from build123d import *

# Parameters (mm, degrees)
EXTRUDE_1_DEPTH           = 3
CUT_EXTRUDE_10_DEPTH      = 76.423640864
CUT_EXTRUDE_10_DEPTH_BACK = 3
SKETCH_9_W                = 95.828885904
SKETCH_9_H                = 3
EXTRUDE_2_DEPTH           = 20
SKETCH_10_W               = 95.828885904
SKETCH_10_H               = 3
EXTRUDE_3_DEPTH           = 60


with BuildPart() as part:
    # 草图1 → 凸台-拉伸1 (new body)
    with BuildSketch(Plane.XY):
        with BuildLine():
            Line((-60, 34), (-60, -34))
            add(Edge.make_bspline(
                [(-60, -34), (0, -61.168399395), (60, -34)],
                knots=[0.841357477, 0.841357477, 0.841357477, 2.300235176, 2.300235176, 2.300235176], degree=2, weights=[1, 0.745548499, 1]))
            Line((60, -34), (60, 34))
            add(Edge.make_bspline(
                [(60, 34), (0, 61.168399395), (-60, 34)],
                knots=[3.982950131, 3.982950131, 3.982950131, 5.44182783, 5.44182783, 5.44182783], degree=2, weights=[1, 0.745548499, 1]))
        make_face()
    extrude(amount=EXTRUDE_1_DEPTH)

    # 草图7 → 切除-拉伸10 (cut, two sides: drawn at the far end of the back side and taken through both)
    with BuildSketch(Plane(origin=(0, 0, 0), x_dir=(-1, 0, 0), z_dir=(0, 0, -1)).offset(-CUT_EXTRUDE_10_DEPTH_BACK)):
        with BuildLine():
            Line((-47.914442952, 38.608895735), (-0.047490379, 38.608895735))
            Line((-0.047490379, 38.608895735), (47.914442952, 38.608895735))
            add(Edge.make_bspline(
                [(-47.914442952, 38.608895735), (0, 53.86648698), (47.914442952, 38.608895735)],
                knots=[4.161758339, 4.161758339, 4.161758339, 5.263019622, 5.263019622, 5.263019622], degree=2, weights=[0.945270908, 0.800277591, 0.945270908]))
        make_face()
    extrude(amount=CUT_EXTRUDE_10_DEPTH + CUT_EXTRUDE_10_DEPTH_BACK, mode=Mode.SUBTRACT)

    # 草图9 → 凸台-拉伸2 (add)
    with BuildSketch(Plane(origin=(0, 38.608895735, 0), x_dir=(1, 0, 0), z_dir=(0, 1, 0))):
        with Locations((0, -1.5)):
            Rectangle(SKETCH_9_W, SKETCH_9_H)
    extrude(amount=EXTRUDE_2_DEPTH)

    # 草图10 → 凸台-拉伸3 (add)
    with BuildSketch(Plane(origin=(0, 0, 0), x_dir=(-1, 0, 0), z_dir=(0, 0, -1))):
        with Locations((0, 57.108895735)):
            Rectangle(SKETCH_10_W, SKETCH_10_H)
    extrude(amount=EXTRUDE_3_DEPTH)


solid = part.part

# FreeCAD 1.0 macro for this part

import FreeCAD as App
import Part
import Sketcher
Q = App.Units.Quantity

doc = App.newDocument("Part")
body = doc.addObject("PartDesign::Body", "Body")

# Sketch on XY plane
sketch1 = body.newObject("Sketcher::SketchObject", "Sketch")
sketch1.AttachmentSupport = (doc.getObject("XY_Plane"), [""])
sketch1.MapMode = "FlatFace"
sketch1.addGeometry([
    Part.LineSegment(App.Vector(-60, 34, 0), App.Vector(-60, -34, 0)),
    Part.BSplineCurve([App.Vector(-60, -34, 0), App.Vector(0, -61.168399, 0), App.Vector(60, -34, 0)], [3, 3], [0.841357477, 2.300235176], False, 2, [1, 0.745548499, 1], False),
    Part.LineSegment(App.Vector(60, -34, 0), App.Vector(60, 34, 0)),
    Part.BSplineCurve([App.Vector(60, 34, 0), App.Vector(0, 61.168399, 0), App.Vector(-60, 34, 0)], [3, 3], [3.982950131, 5.44182783], False, 2, [1, 0.745548499, 1], False),
], False)
sketch1.addConstraint([
    Sketcher.Constraint("Block", 1),
    Sketcher.Constraint("Block", 3),
    Sketcher.Constraint("Coincident", 0, 2, 1, 1),
    Sketcher.Constraint("Coincident", 1, 2, 2, 1),
    Sketcher.Constraint("Coincident", 2, 2, 3, 1),
    Sketcher.Constraint("Coincident", 3, 2, 0, 1),
])
pad1 = body.newObject("PartDesign::Pad", "Pad")
pad1.Profile = sketch1
pad1.Length = 3

# Sketch on XY plane
sketch2 = body.newObject("Sketcher::SketchObject", "Sketch001")
sketch2.AttachmentSupport = (doc.getObject("XY_Plane"), [""])
sketch2.MapMode = "FlatFace"
sketch2.addGeometry([
    Part.LineSegment(App.Vector(47.914443, 38.608896, 0), App.Vector(-47.914443, 38.608896, 0)),
    Part.BSplineCurve([App.Vector(47.914443, 38.608896, 0), App.Vector(0, 53.866487, 0), App.Vector(-47.914443, 38.608896, 0)], [3, 3], [4.161758339, 5.263019622], False, 2, [0.945270908, 0.800277591, 0.945270908], False),
], False)
sketch2.addConstraint([
    Sketcher.Constraint("Block", 1),
    Sketcher.Constraint("Coincident", 0, 1, 1, 1),
    Sketcher.Constraint("Coincident", 1, 2, 0, 2),
])
pocket1 = body.newObject("PartDesign::Pocket", "Pocket")
pocket1.Profile = sketch2
pocket1.Type = "ThroughAll"
pocket1.Midplane = True

# Sketch on XZ plane
sketch3 = body.newObject("Sketcher::SketchObject", "Sketch002")
sketch3.AttachmentSupport = (doc.getObject("XZ_Plane"), [""])
sketch3.MapMode = "FlatFace"
sketch3.AttachmentOffset = App.Placement(App.Vector(0, 0, -38.608896), App.Rotation())
sketch3.addGeometry([
    Part.LineSegment(App.Vector(-47.9, 0, 0), App.Vector(-47.9, 3, 0)),
    Part.LineSegment(App.Vector(-47.9, 3, 0), App.Vector(47.9, 3, 0)),
    Part.LineSegment(App.Vector(47.9, 3, 0), App.Vector(47.9, 0, 0)),
    Part.LineSegment(App.Vector(47.9, 0, 0), App.Vector(-47.9, 0, 0)),
], False)
sketch3.addConstraint([
    Sketcher.Constraint("Coincident", 0, 2, 1, 1),
    Sketcher.Constraint("Coincident", 1, 2, 2, 1),
    Sketcher.Constraint("Coincident", 2, 2, 3, 1),
    Sketcher.Constraint("Coincident", 3, 2, 0, 1),
    Sketcher.Constraint("Vertical", 0),
    Sketcher.Constraint("Horizontal", 1),
    Sketcher.Constraint("Vertical", 2),
    Sketcher.Constraint("Horizontal", 3),
    Sketcher.Constraint("Symmetric", 2, 2, 3, 2, -1, 1),
    Sketcher.Constraint("DistanceY", 0, 1, 0, 2, Q("3 mm")),
    Sketcher.Constraint("DistanceX", 1, 1, 1, 2, Q("95.828886 mm")),
])
pad2 = body.newObject("PartDesign::Pad", "Pad001")
pad2.Profile = sketch3
pad2.Length = 20
pad2.Reversed = True

# Sketch on XY plane
sketch4 = body.newObject("Sketcher::SketchObject", "Sketch003")
sketch4.AttachmentSupport = (doc.getObject("XY_Plane"), [""])
sketch4.MapMode = "FlatFace"
sketch4.addGeometry([
    Part.LineSegment(App.Vector(47.9, 58.6, 0), App.Vector(47.9, 55.6, 0)),
    Part.LineSegment(App.Vector(47.9, 55.6, 0), App.Vector(-47.9, 55.6, 0)),
    Part.LineSegment(App.Vector(-47.9, 55.6, 0), App.Vector(-47.9, 58.6, 0)),
    Part.LineSegment(App.Vector(-47.9, 58.6, 0), App.Vector(47.9, 58.6, 0)),
], False)
sketch4.addConstraint([
    Sketcher.Constraint("Coincident", 0, 2, 1, 1),
    Sketcher.Constraint("Coincident", 1, 2, 2, 1),
    Sketcher.Constraint("Coincident", 2, 2, 3, 1),
    Sketcher.Constraint("Coincident", 3, 2, 0, 1),
    Sketcher.Constraint("Vertical", 0),
    Sketcher.Constraint("Horizontal", 1),
    Sketcher.Constraint("Vertical", 2),
    Sketcher.Constraint("Horizontal", 3),
    Sketcher.Constraint("DistanceY", 0, 2, 0, 1, Q("3 mm")),
    Sketcher.Constraint("DistanceX", 1, 2, 1, 1, Q("95.828886 mm")),
    Sketcher.Constraint("DistanceX", -1, 1, 0, 2, Q("47.914443 mm")),
    Sketcher.Constraint("DistanceY", -1, 1, 0, 2, Q("55.608896 mm")),
])
pad3 = body.newObject("PartDesign::Pad", "Pad002")
pad3.Profile = sketch4
pad3.Length = 60
pad3.Reversed = True

doc.recompute()
